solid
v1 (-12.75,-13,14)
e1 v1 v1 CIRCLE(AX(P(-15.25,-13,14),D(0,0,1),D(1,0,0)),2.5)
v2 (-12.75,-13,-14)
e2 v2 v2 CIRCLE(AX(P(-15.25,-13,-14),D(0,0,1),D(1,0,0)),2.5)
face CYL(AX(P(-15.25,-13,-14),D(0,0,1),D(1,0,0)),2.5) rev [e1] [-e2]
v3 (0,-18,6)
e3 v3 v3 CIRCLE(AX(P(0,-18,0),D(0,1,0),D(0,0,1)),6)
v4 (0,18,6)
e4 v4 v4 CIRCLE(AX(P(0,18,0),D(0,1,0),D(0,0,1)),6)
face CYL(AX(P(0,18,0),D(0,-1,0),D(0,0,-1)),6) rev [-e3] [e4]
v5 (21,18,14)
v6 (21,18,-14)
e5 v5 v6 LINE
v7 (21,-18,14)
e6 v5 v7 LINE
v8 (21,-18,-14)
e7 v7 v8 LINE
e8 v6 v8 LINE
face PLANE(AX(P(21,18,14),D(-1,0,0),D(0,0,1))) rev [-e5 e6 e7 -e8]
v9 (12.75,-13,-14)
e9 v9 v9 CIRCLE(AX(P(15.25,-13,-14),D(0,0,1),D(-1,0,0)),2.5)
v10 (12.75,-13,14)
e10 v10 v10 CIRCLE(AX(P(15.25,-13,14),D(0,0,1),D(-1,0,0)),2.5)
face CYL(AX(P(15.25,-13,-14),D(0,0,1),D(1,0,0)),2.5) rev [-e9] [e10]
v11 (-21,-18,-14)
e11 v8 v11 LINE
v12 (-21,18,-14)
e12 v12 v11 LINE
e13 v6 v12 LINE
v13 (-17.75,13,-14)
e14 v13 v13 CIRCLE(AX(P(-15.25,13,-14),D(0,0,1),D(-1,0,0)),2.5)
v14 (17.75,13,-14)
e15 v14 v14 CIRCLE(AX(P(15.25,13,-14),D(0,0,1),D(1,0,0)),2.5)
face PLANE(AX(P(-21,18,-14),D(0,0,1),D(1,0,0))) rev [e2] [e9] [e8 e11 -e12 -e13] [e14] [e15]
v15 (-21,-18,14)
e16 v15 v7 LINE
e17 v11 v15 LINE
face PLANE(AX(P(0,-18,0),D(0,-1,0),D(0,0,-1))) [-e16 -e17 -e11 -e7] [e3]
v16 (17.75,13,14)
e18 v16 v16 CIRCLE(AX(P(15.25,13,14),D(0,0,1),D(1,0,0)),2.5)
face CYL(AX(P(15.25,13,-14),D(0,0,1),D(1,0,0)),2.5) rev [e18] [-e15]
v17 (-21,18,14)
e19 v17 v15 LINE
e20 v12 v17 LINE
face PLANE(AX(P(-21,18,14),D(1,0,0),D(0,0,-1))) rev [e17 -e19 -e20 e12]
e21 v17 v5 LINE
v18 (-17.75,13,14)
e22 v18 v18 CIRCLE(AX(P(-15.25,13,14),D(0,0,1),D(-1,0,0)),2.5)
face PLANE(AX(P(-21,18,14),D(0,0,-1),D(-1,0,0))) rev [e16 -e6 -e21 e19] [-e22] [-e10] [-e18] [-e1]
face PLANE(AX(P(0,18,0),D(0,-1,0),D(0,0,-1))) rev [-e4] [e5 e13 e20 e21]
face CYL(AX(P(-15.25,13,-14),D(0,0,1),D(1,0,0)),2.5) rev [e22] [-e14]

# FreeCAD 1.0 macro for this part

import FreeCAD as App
import Part
import Sketcher

V = App.Vector

doc = App.newDocument("Part")
body = doc.addObject("PartDesign::Body", "Body")

sketch1 = body.newObject("Sketcher::SketchObject", "Sketch")
sketch1.AttachmentSupport = (doc.getObject("XZ_Plane"), [""])
sketch1.MapMode = "FlatFace"
sketch1.addGeometry(Part.LineSegment(V(-21, -14, 0), V(-21, 14, 0)), False)
sketch1.addGeometry(Part.LineSegment(V(-21, 14, 0), V(21, 14, 0)), False)
sketch1.addGeometry(Part.LineSegment(V(21, 14, 0), V(21, -14, 0)), False)
sketch1.addGeometry(Part.LineSegment(V(21, -14, 0), V(-21, -14, 0)), False)
sketch1.addGeometry(Part.Circle(V(0, 0, 0), V(0, 0, 1), 6), False)
sketch1.addConstraint(Sketcher.Constraint("Coincident", 0, 2, 1, 1))
sketch1.addConstraint(Sketcher.Constraint("Coincident", 1, 2, 2, 1))
sketch1.addConstraint(Sketcher.Constraint("Coincident", 2, 2, 3, 1))
sketch1.addConstraint(Sketcher.Constraint("Coincident", 3, 2, 0, 1))
sketch1.addConstraint(Sketcher.Constraint("Vertical", 0))
sketch1.addConstraint(Sketcher.Constraint("Horizontal", 1))
sketch1.addConstraint(Sketcher.Constraint("Vertical", 2))
sketch1.addConstraint(Sketcher.Constraint("Horizontal", 3))
sketch1.addConstraint(Sketcher.Constraint("Coincident", 4, 3, -1, 1))
sketch1.addConstraint(Sketcher.Constraint("Symmetric", 0, 2, 2, 2, -1, 1))
sketch1.addConstraint(Sketcher.Constraint("Diameter", 4, 12.0))
sketch1.addConstraint(Sketcher.Constraint("DistanceX", 1, 1, 1, 2, 42.0))
sketch1.addConstraint(Sketcher.Constraint("DistanceY", 0, 1, 0, 2, 28.0))
pad1 = body.newObject("PartDesign::Pad", "Pad")
pad1.Profile = sketch1
pad1.Length = 18
pad1.Reversed = True

sketch2 = body.newObject("Sketcher::SketchObject", "Sketch001")
sketch2.AttachmentSupport = (doc.getObject("XZ_Plane"), [""])
sketch2.MapMode = "FlatFace"
sketch2.AttachmentOffset = App.Placement(V(0, 0, 18), App.Rotation())
sketch2.addGeometry(Part.LineSegment(V(-21, -14, 0), V(-21, 14, 0)), False)
sketch2.addGeometry(Part.LineSegment(V(-21, 14, 0), V(21, 14, 0)), False)
sketch2.addGeometry(Part.LineSegment(V(21, 14, 0), V(21, -14, 0)), False)
sketch2.addGeometry(Part.LineSegment(V(21, -14, 0), V(-21, -14, 0)), False)
sketch2.addGeometry(Part.Circle(V(0, 0, 0), V(0, 0, 1), 6), False)
sketch2.addConstraint(Sketcher.Constraint("Coincident", 0, 2, 1, 1))
sketch2.addConstraint(Sketcher.Constraint("Coincident", 1, 2, 2, 1))
sketch2.addConstraint(Sketcher.Constraint("Coincident", 2, 2, 3, 1))
sketch2.addConstraint(Sketcher.Constraint("Coincident", 3, 2, 0, 1))
sketch2.addConstraint(Sketcher.Constraint("Vertical", 0))
sketch2.addConstraint(Sketcher.Constraint("Horizontal", 1))
sketch2.addConstraint(Sketcher.Constraint("Vertical", 2))
sketch2.addConstraint(Sketcher.Constraint("Horizontal", 3))
sketch2.addConstraint(Sketcher.Constraint("Coincident", 4, 3, -1, 1))
sketch2.addConstraint(Sketcher.Constraint("Symmetric", 0, 2, 2, 2, -1, 1))
sketch2.addConstraint(Sketcher.Constraint("Diameter", 4, 12.0))
sketch2.addConstraint(Sketcher.Constraint("DistanceX", 1, 1, 1, 2, 42.0))
sketch2.addConstraint(Sketcher.Constraint("DistanceY", 0, 1, 0, 2, 28.0))
pad2 = body.newObject("PartDesign::Pad", "Pad001")
pad2.Profile = sketch2
pad2.Length = 18
pad2.Reversed = True

sketch3 = body.newObject("Sketcher::SketchObject", "Sketch002")
sketch3.AttachmentSupport = (doc.getObject("XY_Plane"), [""])
sketch3.MapMode = "FlatFace"
sketch3.addGeometry(Part.Circle(V(15.25, 13, 0), V(0, 0, 1), 2.5), False)
sketch3.addGeometry(Part.Circle(V(-15.25, 13, 0), V(0, 0, 1), 2.5), False)
sketch3.addGeometry(Part.Circle(V(15.25, -13, 0), V(0, 0, 1), 2.5), False)
sketch3.addGeometry(Part.Circle(V(-15.25, -13, 0), V(0, 0, 1), 2.5), False)
sketch3.addConstraint(Sketcher.Constraint("Equal", 0, 1))
sketch3.addConstraint(Sketcher.Constraint("Equal", 1, 2))
sketch3.addConstraint(Sketcher.Constraint("Equal", 2, 3))
sketch3.addConstraint(Sketcher.Constraint("Symmetric", 1, 3, 2, 3, -1, 1))
sketch3.addConstraint(Sketcher.Constraint("Symmetric", 0, 3, 3, 3, -1, 1))
sketch3.addConstraint(Sketcher.Constraint("Symmetric", 0, 3, 1, 3, -2))
sketch3.addConstraint(Sketcher.Constraint("Diameter", 0, 5.0))
sketch3.addConstraint(Sketcher.Constraint("DistanceY", -1, 1, 0, 3, 13.0))
sketch3.addConstraint(Sketcher.Constraint("DistanceX", 1, 3, 0, 3, 30.5))
pocket1 = body.newObject("PartDesign::Pocket", "Pocket")
pocket1.Profile = sketch3
pocket1.Type = "ThroughAll"
pocket1.Midplane = True

doc.recompute()
